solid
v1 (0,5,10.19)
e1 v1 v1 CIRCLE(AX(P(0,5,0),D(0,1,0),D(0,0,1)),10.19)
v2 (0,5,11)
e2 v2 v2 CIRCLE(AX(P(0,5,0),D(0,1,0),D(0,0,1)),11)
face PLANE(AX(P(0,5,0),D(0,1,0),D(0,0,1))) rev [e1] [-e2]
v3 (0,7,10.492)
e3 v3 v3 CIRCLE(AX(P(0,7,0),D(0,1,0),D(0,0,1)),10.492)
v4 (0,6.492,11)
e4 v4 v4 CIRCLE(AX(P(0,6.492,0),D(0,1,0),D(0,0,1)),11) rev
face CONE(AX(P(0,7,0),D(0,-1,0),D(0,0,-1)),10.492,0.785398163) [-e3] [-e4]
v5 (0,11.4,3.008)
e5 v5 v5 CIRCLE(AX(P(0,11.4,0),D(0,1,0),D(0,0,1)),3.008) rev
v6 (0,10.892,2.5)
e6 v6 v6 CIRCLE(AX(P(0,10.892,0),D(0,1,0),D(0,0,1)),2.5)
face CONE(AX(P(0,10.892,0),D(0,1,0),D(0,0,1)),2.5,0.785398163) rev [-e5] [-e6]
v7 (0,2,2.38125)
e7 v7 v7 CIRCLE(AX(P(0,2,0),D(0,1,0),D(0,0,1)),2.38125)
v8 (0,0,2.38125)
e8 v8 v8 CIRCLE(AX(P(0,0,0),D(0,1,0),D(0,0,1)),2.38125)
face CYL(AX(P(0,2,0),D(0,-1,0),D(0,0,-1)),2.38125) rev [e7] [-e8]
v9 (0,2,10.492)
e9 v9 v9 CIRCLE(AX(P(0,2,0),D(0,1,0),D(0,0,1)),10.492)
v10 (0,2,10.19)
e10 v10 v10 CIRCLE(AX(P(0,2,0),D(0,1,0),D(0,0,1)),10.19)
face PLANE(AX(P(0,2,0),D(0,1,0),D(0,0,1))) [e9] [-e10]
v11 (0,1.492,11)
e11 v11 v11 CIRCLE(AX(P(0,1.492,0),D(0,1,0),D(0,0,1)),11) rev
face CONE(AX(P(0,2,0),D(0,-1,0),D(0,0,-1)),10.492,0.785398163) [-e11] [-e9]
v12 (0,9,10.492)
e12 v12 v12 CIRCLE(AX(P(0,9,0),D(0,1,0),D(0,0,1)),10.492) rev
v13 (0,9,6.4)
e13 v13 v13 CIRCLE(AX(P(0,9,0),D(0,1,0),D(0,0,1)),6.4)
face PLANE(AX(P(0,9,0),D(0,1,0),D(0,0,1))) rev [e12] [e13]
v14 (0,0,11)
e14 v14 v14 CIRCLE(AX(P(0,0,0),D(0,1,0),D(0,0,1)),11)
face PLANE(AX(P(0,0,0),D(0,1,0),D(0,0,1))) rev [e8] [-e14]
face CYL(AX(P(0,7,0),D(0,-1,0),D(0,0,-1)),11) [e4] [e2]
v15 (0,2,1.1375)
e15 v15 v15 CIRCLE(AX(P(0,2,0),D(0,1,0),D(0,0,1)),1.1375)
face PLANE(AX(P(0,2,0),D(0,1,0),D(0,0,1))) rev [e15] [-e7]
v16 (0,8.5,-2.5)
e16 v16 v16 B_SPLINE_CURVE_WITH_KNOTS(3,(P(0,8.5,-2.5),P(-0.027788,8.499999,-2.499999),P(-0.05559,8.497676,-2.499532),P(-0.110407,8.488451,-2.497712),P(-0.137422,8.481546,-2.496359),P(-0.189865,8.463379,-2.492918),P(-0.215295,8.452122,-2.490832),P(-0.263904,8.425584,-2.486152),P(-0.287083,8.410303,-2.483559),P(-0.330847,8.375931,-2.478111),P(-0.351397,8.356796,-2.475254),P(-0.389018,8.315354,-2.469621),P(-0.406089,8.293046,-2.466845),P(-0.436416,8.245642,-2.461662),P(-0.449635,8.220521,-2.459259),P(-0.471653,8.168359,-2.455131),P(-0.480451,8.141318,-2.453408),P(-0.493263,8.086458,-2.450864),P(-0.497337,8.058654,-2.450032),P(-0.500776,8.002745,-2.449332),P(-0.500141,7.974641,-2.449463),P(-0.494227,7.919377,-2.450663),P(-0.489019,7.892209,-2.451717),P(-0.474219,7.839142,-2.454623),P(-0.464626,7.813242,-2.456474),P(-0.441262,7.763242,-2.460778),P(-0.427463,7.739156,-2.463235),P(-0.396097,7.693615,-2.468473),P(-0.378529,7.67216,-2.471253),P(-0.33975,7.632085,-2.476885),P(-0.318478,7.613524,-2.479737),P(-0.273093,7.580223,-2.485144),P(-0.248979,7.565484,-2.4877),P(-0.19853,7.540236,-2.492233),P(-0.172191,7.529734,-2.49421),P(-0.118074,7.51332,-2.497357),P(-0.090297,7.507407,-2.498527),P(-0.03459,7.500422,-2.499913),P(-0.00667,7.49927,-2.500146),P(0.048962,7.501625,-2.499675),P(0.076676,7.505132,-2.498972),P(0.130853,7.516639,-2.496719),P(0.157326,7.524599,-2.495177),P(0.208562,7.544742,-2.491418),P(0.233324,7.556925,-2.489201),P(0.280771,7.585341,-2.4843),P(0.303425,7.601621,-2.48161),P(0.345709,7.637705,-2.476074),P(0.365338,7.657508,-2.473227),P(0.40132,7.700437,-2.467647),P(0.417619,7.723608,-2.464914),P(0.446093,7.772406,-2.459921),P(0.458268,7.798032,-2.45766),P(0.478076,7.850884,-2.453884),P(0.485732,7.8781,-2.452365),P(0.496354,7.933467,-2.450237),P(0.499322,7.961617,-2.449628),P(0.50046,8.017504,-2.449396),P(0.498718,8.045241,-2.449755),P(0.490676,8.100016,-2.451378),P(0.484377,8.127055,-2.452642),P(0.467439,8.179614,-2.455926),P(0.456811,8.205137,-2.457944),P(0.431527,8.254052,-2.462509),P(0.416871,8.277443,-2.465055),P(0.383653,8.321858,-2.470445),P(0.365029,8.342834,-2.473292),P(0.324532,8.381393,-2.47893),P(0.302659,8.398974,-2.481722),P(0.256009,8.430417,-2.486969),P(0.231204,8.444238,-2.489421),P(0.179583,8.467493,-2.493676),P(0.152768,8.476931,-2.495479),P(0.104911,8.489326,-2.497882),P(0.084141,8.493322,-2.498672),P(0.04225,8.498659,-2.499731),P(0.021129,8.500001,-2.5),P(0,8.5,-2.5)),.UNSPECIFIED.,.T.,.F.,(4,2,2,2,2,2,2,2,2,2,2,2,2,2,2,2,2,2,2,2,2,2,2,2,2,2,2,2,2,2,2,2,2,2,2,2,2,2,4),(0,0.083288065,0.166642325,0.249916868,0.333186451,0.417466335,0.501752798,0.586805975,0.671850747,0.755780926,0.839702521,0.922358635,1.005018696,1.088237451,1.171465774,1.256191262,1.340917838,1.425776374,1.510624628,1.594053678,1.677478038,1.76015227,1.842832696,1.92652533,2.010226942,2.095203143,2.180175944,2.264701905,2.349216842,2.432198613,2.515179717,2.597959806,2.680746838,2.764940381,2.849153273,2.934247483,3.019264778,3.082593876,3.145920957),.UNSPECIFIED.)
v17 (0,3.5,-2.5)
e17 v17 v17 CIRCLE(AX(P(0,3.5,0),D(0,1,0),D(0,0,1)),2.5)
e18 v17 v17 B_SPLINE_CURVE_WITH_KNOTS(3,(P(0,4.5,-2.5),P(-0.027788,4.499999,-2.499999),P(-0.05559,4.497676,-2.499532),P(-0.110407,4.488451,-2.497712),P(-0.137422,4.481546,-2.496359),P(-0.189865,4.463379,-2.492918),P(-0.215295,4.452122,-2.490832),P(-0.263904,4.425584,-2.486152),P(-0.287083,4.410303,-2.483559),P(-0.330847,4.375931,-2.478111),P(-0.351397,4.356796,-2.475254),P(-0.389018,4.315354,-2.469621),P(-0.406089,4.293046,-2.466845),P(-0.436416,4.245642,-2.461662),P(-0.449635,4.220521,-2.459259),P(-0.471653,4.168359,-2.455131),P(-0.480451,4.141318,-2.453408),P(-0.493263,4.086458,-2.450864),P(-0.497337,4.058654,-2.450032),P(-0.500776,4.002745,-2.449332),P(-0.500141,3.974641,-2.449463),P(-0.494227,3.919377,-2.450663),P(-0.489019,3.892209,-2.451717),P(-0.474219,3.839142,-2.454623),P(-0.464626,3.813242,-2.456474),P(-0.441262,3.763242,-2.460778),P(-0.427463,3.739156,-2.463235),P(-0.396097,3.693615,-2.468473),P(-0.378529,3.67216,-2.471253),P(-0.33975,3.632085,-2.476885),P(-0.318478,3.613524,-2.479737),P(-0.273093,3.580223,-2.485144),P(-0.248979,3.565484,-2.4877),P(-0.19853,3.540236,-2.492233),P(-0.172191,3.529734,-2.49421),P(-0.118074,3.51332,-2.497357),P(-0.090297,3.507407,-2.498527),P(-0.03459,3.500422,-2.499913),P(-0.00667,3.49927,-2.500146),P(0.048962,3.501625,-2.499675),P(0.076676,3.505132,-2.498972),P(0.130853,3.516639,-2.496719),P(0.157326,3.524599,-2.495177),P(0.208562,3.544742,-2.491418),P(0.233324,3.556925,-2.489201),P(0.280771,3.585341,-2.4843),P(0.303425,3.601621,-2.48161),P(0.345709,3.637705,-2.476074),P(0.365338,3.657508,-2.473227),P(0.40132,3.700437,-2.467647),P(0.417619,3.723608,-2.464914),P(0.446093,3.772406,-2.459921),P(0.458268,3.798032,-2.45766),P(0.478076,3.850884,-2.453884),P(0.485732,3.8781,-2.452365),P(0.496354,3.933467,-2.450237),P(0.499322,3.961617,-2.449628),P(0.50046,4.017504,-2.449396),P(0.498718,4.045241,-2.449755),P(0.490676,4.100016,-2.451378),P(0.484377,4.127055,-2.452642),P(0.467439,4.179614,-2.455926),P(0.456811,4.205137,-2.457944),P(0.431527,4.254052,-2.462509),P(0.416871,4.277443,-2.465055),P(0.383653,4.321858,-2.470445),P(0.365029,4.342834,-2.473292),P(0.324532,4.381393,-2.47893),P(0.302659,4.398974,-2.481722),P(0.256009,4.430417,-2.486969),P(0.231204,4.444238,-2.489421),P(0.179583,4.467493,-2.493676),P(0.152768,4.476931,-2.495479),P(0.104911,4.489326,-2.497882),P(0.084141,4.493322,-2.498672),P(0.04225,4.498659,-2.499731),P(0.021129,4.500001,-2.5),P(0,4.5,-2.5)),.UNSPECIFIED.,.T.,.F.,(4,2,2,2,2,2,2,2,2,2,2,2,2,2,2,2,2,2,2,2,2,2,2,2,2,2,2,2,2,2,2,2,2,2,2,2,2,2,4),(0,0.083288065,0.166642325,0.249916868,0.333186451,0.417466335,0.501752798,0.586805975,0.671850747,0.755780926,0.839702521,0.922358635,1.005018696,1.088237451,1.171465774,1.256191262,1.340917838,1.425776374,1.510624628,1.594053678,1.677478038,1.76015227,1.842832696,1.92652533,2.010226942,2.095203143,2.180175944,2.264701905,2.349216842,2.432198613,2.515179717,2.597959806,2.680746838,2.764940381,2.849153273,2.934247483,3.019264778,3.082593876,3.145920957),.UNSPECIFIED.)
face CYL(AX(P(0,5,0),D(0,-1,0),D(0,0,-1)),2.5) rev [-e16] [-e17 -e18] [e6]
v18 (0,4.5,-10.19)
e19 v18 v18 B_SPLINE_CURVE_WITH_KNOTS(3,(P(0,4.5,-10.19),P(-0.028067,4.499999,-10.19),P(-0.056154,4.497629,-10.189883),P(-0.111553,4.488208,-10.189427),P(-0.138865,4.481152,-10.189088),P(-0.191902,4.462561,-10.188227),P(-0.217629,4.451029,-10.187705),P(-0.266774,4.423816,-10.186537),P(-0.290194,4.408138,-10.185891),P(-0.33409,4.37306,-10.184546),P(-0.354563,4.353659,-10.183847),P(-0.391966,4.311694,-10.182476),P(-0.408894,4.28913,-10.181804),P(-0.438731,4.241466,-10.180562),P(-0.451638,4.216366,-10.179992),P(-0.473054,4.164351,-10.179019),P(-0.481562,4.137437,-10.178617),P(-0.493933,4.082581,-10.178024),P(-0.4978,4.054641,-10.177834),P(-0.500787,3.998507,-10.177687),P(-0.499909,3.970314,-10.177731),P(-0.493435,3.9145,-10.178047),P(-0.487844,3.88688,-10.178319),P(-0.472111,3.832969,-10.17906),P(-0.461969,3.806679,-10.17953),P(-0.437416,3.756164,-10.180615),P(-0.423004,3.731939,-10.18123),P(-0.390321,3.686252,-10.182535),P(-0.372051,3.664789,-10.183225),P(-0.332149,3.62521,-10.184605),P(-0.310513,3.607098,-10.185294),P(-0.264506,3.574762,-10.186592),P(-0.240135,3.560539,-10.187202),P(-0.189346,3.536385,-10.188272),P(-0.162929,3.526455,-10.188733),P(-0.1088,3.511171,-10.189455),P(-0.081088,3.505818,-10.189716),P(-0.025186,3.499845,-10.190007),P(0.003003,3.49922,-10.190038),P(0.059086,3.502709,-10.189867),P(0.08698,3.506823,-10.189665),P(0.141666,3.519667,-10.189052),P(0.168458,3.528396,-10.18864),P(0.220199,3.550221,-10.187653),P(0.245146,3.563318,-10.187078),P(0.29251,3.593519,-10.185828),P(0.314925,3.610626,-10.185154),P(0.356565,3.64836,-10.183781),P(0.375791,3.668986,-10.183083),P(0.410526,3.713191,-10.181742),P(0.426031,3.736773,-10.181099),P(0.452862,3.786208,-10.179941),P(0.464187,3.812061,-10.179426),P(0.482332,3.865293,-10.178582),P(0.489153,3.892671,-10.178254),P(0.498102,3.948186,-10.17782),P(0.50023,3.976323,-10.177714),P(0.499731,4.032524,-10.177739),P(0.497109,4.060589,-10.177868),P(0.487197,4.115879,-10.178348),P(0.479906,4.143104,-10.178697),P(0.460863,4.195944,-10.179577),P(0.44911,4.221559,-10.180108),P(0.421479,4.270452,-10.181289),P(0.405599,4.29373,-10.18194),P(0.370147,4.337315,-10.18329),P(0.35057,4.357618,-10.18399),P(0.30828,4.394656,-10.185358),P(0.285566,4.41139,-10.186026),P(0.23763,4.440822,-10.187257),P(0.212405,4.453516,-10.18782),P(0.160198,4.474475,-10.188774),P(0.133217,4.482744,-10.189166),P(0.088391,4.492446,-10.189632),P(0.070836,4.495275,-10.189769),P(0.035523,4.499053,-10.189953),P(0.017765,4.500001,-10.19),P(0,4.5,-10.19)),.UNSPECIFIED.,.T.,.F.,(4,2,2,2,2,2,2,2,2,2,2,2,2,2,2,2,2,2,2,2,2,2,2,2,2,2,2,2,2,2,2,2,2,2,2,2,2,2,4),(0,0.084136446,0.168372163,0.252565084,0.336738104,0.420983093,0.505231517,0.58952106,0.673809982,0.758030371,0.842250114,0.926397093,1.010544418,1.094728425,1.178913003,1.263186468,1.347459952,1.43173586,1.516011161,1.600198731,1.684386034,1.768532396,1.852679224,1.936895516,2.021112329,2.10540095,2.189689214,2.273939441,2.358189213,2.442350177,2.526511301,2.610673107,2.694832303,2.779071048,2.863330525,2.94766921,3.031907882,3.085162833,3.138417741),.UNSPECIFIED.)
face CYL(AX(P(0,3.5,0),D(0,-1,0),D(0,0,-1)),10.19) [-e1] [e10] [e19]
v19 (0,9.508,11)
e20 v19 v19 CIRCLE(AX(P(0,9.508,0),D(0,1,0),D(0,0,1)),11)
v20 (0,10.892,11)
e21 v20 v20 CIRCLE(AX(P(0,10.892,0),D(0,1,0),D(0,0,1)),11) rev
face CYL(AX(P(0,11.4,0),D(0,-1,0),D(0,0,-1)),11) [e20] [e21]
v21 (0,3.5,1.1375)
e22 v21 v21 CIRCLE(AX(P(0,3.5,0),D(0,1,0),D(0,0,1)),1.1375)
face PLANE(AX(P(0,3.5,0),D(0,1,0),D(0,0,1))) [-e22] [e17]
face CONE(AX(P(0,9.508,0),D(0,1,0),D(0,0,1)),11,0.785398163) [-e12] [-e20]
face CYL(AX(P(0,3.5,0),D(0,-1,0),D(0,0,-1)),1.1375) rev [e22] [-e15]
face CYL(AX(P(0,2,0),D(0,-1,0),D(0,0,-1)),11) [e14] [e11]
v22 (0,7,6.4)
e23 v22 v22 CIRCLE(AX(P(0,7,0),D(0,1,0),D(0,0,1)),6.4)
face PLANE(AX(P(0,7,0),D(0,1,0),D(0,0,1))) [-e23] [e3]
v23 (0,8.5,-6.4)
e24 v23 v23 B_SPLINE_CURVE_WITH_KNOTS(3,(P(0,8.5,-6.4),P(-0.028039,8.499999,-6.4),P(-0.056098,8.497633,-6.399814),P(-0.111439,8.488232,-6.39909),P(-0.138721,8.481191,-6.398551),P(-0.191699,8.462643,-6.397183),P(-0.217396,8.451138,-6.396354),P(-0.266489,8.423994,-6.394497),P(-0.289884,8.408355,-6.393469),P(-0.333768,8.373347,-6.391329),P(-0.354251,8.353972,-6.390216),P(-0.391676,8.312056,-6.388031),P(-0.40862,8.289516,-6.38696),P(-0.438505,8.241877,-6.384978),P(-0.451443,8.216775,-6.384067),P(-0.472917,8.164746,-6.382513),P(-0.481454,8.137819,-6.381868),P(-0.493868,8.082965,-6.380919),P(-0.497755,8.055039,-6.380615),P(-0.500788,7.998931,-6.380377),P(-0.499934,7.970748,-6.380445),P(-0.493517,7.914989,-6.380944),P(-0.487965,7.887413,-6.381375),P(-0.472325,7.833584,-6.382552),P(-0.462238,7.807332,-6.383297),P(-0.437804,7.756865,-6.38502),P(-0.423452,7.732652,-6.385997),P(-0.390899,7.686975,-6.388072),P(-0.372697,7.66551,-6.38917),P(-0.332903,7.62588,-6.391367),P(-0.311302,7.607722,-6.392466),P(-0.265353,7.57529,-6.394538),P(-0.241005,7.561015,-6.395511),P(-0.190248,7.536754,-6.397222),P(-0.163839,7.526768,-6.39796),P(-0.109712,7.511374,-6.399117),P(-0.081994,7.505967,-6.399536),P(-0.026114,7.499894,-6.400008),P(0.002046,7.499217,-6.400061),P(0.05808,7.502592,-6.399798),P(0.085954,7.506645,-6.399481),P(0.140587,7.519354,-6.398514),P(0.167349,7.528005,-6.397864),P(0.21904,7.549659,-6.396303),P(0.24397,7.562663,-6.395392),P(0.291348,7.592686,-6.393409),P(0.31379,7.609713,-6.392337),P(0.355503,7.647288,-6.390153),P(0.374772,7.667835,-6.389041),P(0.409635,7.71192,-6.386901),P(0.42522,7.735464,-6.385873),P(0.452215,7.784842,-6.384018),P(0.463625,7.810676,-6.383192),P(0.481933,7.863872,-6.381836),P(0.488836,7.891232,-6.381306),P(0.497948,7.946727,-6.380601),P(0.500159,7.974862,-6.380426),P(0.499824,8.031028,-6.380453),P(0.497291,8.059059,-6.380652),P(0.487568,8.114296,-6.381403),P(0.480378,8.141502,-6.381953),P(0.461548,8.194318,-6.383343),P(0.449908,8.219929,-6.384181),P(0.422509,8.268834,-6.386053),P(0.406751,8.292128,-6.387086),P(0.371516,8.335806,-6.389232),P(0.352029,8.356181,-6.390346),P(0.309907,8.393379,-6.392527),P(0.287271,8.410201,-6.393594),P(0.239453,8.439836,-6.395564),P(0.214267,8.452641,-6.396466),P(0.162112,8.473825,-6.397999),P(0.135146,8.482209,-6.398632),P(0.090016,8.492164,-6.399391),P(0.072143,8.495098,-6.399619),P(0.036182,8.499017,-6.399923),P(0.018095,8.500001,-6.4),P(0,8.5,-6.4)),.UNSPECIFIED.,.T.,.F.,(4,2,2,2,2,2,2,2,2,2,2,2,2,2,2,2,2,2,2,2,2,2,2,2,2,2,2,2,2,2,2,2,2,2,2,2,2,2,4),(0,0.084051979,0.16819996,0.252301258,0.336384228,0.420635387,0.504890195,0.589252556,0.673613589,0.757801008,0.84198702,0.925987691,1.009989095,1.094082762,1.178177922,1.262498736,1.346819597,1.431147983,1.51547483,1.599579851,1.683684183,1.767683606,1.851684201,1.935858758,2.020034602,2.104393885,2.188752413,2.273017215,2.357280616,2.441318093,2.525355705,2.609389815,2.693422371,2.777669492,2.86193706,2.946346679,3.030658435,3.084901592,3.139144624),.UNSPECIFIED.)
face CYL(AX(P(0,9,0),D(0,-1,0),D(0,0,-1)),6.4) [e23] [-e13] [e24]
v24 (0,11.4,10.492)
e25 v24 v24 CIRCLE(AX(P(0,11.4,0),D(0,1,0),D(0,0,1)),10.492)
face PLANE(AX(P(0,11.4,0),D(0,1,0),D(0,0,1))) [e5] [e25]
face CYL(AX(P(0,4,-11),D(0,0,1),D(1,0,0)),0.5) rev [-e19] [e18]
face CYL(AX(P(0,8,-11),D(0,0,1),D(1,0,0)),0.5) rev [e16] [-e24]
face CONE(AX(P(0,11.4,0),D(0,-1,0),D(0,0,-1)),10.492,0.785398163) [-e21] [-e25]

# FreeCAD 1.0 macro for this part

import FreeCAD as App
import Part
import Sketcher

V = App.Vector


def edges_at(feature, points):
    """Names of the edges that pass closest to the given points."""
    edges = feature.Shape.Edges
    near = lambda p: min(range(len(edges)), key=lambda i: edges[i].distToShape(Part.Vertex(*p))[0])
    return sorted({f"Edge{near(p) + 1}" for p in points})

doc = App.newDocument("Part")
params = doc.addObject("Spreadsheet::Sheet", "Params")
for row, (alias, value) in enumerate([
    ("sketch1_diameter", "22 mm"),
    ("pad1_length", "2 mm"),
    ("sketch2_diameter", "20.38 mm"),
    ("pad2_length", "1.5 mm"),
    ("sketch3_diameter", "5 mm"),
    ("sketch3_diameter2", "20.38 mm"),
    ("pad3_length", "1.5 mm"),
    ("sketch4_diameter", "22 mm"),
    ("sketch4_diameter2", "5 mm"),
    ("pad4_length", "2 mm"),
    ("sketch5_diameter", "5 mm"),
    ("sketch5_diameter2", "12.8 mm"),
    ("pad5_length", "2 mm"),
    ("sketch6_diameter", "22 mm"),
    ("sketch6_diameter2", "5 mm"),
    ("pad6_length", "2.4 mm"),
    ("sketch7_diameter", "1 mm"),
    ("chamfer_size", "0.508 mm"),
], start=1):
    params.set(f"A{row}", alias)
    params.set(f"B{row}", "=" + value)
    params.setAlias(f"B{row}", alias)

body = doc.addObject("PartDesign::Body", "Body")

# Sketch on XZ plane
sketch1 = doc.addObject("Sketcher::SketchObject", "Sketch")
body.addObject(sketch1)
sketch1.AttachmentSupport = (doc.XZ_Plane, [""])
sketch1.MapMode = "FlatFace"
sketch1.addGeometry([
    Part.Circle(V(0, 0, 0), V(0, 0, 1), 11),
    Part.Circle(V(0, 0, 0), V(0, 0, 1), 2.38125),
], False)
sketch1.addConstraint([
    Sketcher.Constraint("Coincident", 0, 3, -1, 1),
    Sketcher.Constraint("Coincident", 1, 3, -1, 1),
    Sketcher.Constraint("Diameter", 0, 22.0),
    Sketcher.Constraint("Diameter", 1, 4.7625),
])
sketch1.setExpression("Constraints[2]", "Params.sketch1_diameter")
pad1 = doc.addObject("PartDesign::Pad", "Pad")
body.addObject(pad1)
pad1.Profile = sketch1
pad1.setExpression("Length", "Params.pad1_length")
pad1.Reversed = True

# Sketch on XZ plane
sketch2 = doc.addObject("Sketcher::SketchObject", "Sketch001")
body.addObject(sketch2)
sketch2.AttachmentSupport = (doc.XZ_Plane, [""])
sketch2.MapMode = "FlatFace"
sketch2.AttachmentOffset = App.Placement(V(0, 0, -2), App.Rotation())
sketch2.addGeometry([
    Part.Circle(V(0, 0, 0), V(0, 0, 1), 10.19),
    Part.Circle(V(0, 0, 0), V(0, 0, 1), 1.1375),
], False)
sketch2.addConstraint([
    Sketcher.Constraint("Coincident", 0, 3, -1, 1),
    Sketcher.Constraint("Coincident", 1, 3, -1, 1),
    Sketcher.Constraint("Diameter", 0, 20.38),
    Sketcher.Constraint("Diameter", 1, 2.275),
])
sketch2.setExpression("Constraints[2]", "Params.sketch2_diameter")
pad2 = doc.addObject("PartDesign::Pad", "Pad001")
body.addObject(pad2)
pad2.Profile = sketch2
pad2.setExpression("Length", "Params.pad2_length")
pad2.Reversed = True

# Sketch on XZ plane
sketch3 = doc.addObject("Sketcher::SketchObject", "Sketch002")
body.addObject(sketch3)
sketch3.AttachmentSupport = (doc.XZ_Plane, [""])
sketch3.MapMode = "FlatFace"
sketch3.AttachmentOffset = App.Placement(V(0, 0, -3.5), App.Rotation())
sketch3.addGeometry([
    Part.Circle(V(0, 0, 0), V(0, 0, 1), 10.19),
    Part.Circle(V(0, 0, 0), V(0, 0, 1), 2.5),
], False)
sketch3.addConstraint([
    Sketcher.Constraint("Coincident", 0, 3, -1, 1),
    Sketcher.Constraint("Coincident", 1, 3, -1, 1),
    Sketcher.Constraint("Diameter", 1, 5.0),
    Sketcher.Constraint("Diameter", 0, 20.38),
])
sketch3.setExpression("Constraints[2]", "Params.sketch3_diameter")
sketch3.setExpression("Constraints[3]", "Params.sketch3_diameter2")
pad3 = doc.addObject("PartDesign::Pad", "Pad002")
body.addObject(pad3)
pad3.Profile = sketch3
pad3.setExpression("Length", "Params.pad3_length")
pad3.Reversed = True

# Sketch on XZ plane
sketch4 = doc.addObject("Sketcher::SketchObject", "Sketch003")
body.addObject(sketch4)
sketch4.AttachmentSupport = (doc.XZ_Plane, [""])
sketch4.MapMode = "FlatFace"
sketch4.AttachmentOffset = App.Placement(V(0, 0, -5), App.Rotation())
sketch4.addGeometry([
    Part.Circle(V(0, 0, 0), V(0, 0, 1), 11),
    Part.Circle(V(0, 0, 0), V(0, 0, 1), 2.5),
], False)
sketch4.addConstraint([
    Sketcher.Constraint("Coincident", 0, 3, -1, 1),
    Sketcher.Constraint("Coincident", 1, 3, -1, 1),
    Sketcher.Constraint("Diameter", 0, 22.0),
    Sketcher.Constraint("Diameter", 1, 5.0),
])
sketch4.setExpression("Constraints[2]", "Params.sketch4_diameter")
sketch4.setExpression("Constraints[3]", "Params.sketch4_diameter2")
pad4 = doc.addObject("PartDesign::Pad", "Pad003")
body.addObject(pad4)
pad4.Profile = sketch4
pad4.setExpression("Length", "Params.pad4_length")
pad4.Reversed = True

# Sketch on XZ plane
sketch5 = doc.addObject("Sketcher::SketchObject", "Sketch004")
body.addObject(sketch5)
sketch5.AttachmentSupport = (doc.XZ_Plane, [""])
sketch5.MapMode = "FlatFace"
sketch5.AttachmentOffset = App.Placement(V(0, 0, -7), App.Rotation())
sketch5.addGeometry([
    Part.Circle(V(0, 0, 0), V(0, 0, 1), 6.4),
    Part.Circle(V(0, 0, 0), V(0, 0, 1), 2.5),
], False)
sketch5.addConstraint([
    Sketcher.Constraint("Coincident", 0, 3, -1, 1),
    Sketcher.Constraint("Coincident", 1, 3, -1, 1),
    Sketcher.Constraint("Diameter", 1, 5.0),
    Sketcher.Constraint("Diameter", 0, 12.8),
])
sketch5.setExpression("Constraints[2]", "Params.sketch5_diameter")
sketch5.setExpression("Constraints[3]", "Params.sketch5_diameter2")
pad5 = doc.addObject("PartDesign::Pad", "Pad004")
body.addObject(pad5)
pad5.Profile = sketch5
pad5.setExpression("Length", "Params.pad5_length")
pad5.Reversed = True

# Sketch on XZ plane
sketch6 = doc.addObject("Sketcher::SketchObject", "Sketch005")
body.addObject(sketch6)
sketch6.AttachmentSupport = (doc.XZ_Plane, [""])
sketch6.MapMode = "FlatFace"
sketch6.AttachmentOffset = App.Placement(V(0, 0, -9), App.Rotation())
sketch6.addGeometry([
    Part.Circle(V(0, 0, 0), V(0, 0, 1), 11),
    Part.Circle(V(0, 0, 0), V(0, 0, 1), 2.5),
], False)
sketch6.addConstraint([
    Sketcher.Constraint("Coincident", 0, 3, -1, 1),
    Sketcher.Constraint("Coincident", 1, 3, -1, 1),
    Sketcher.Constraint("Diameter", 0, 22.0),
    Sketcher.Constraint("Diameter", 1, 5.0),
])
sketch6.setExpression("Constraints[2]", "Params.sketch6_diameter")
sketch6.setExpression("Constraints[3]", "Params.sketch6_diameter2")
pad6 = doc.addObject("PartDesign::Pad", "Pad005")
body.addObject(pad6)
pad6.Profile = sketch6
pad6.setExpression("Length", "Params.pad6_length")
pad6.Reversed = True

# Sketch on XY plane
sketch7 = doc.addObject("Sketcher::SketchObject", "Sketch006")
body.addObject(sketch7)
sketch7.AttachmentSupport = (doc.XY_Plane, [""])
sketch7.MapMode = "FlatFace"
sketch7.addGeometry([
    Part.Circle(V(0, 8, 0), V(0, 0, 1), 0.5),
    Part.Circle(V(0, 4, 0), V(0, 0, 1), 0.5),
], False)
sketch7.addConstraint([
    Sketcher.Constraint("Equal", 0, 1),
    Sketcher.Constraint("PointOnObject", 0, 3, -2),
    Sketcher.Constraint("PointOnObject", 1, 3, -2),
    Sketcher.Constraint("Diameter", 0, 1.0),
    Sketcher.Constraint("DistanceY", -1, 1, 0, 3, 8.0),
    Sketcher.Constraint("DistanceY", -1, 1, 1, 3, 4.0),
])
sketch7.setExpression("Constraints[3]", "Params.sketch7_diameter")
pocket1 = doc.addObject("PartDesign::Pocket", "Pocket")
body.addObject(pocket1)
pocket1.Profile = sketch7
pocket1.Type = "ThroughAll"
doc.recompute()

chamfer = doc.addObject("PartDesign::Chamfer", "Chamfer")
body.addObject(chamfer)
chamfer.Base = (pocket1, edges_at(pocket1, [
    (0, 7, -11),
    (0, 11.4, -11),
    (0, 9, -11),
    (0, 11.4, -2.5),
    (0, 2, -11),
]))
chamfer.setExpression("Size", "Params.chamfer_size")

doc.recompute()
